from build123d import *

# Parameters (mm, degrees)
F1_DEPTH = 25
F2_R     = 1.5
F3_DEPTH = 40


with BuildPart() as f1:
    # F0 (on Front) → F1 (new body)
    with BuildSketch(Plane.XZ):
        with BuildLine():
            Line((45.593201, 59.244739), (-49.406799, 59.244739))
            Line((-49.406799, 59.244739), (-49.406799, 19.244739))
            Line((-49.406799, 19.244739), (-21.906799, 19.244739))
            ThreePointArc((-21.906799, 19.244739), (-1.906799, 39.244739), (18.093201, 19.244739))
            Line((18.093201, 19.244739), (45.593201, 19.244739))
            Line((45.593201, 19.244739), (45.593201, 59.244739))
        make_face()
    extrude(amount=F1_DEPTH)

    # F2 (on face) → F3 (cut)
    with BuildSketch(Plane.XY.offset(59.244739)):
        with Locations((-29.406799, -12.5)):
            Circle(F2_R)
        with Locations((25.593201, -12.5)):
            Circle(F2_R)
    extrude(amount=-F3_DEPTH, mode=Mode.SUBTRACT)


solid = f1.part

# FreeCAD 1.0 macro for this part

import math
import FreeCAD as App
import Part
import Sketcher

V = App.Vector
Q = App.Units.Quantity

doc = App.newDocument("Part")
body = doc.addObject("PartDesign::Body", "Body")

# Sketch on XZ plane
sketch1 = body.newObject("Sketcher::SketchObject", "Sketch")
sketch1.AttachmentSupport = (doc.getObject("XZ_Plane"), [""])
sketch1.MapMode = "FlatFace"
sketch1.addGeometry([
    Part.LineSegment(V(45.593201, 59.244739, 0), V(-49.406799, 59.244739, 0)),  # 0
    Part.LineSegment(V(-49.406799, 59.244739, 0), V(-49.406799, 19.244739, 0)),  # 1
    Part.LineSegment(V(-49.406799, 19.244739, 0), V(-21.906799, 19.244739, 0)),  # 2
    Part.ArcOfCircle(Part.Circle(V(-1.906799, 19.244739, 0), V(0, 0, 1), 20), math.radians(0), math.radians(180)),  # 3
    Part.LineSegment(V(18.093201, 19.244739, 0), V(45.593201, 19.244739, 0)),  # 4
    Part.LineSegment(V(45.593201, 19.244739, 0), V(45.593201, 59.244739, 0)),  # 5
], False)
sketch1.addConstraint([
    Sketcher.Constraint("Coincident", 0, 2, 1, 1),
    Sketcher.Constraint("Coincident", 1, 2, 2, 1),
    Sketcher.Constraint("Coincident", 2, 2, 3, 2),
    Sketcher.Constraint("Coincident", 3, 1, 4, 1),
    Sketcher.Constraint("Coincident", 4, 2, 5, 1),
    Sketcher.Constraint("Coincident", 5, 2, 0, 1),
    Sketcher.Constraint("Horizontal", 0),
    Sketcher.Constraint("Vertical", 1),
    Sketcher.Constraint("Horizontal", 2),
    Sketcher.Constraint("Horizontal", 4),
    Sketcher.Constraint("Vertical", 5),
    Sketcher.Constraint("Horizontal", 3, 3, 1, 2),
    Sketcher.Constraint("Horizontal", 2, 2, 3, 1),
    Sketcher.Constraint("Equal", 2, 4),
    Sketcher.Constraint("Radius", 3, Q("20 mm")),
    Sketcher.Constraint("DistanceX", 0, 2, 0, 1, Q("95 mm")),
    Sketcher.Constraint("DistanceY", 1, 2, 1, 1, Q("40 mm")),
    Sketcher.Constraint("DistanceX", 3, 3, -1, 1, Q("1.906799 mm")),
    Sketcher.Constraint("DistanceY", -1, 1, 3, 3, Q("19.244739 mm")),
])
pad1 = body.newObject("PartDesign::Pad", "Pad")
pad1.Profile = sketch1
pad1.Length = 25

# Sketch on XY plane
sketch2 = body.newObject("Sketcher::SketchObject", "Sketch001")
sketch2.AttachmentSupport = (doc.getObject("XY_Plane"), [""])
sketch2.MapMode = "FlatFace"
sketch2.AttachmentOffset = App.Placement(V(0, 0, 59.244739), App.Rotation())
sketch2.addGeometry([
    Part.Circle(V(-29.406799, -12.5, 0), V(0, 0, 1), 1.5),
    Part.Circle(V(25.593201, -12.5, 0), V(0, 0, 1), 1.5),
], False)
sketch2.addConstraint([
    Sketcher.Constraint("Equal", 0, 1),
    Sketcher.Constraint("Horizontal", 0, 3, 1, 3),
    Sketcher.Constraint("Diameter", 0, Q("3 mm")),
    Sketcher.Constraint("DistanceX", 0, 3, 1, 3, Q("55 mm")),
    Sketcher.Constraint("DistanceY", 0, 3, -1, 1, Q("12.5 mm")),
    Sketcher.Constraint("DistanceX", 0, 3, -1, 1, Q("29.406799 mm")),
])
pocket1 = body.newObject("PartDesign::Pocket", "Pocket")
pocket1.Profile = sketch2
pocket1.Length = 40

doc.recompute()
